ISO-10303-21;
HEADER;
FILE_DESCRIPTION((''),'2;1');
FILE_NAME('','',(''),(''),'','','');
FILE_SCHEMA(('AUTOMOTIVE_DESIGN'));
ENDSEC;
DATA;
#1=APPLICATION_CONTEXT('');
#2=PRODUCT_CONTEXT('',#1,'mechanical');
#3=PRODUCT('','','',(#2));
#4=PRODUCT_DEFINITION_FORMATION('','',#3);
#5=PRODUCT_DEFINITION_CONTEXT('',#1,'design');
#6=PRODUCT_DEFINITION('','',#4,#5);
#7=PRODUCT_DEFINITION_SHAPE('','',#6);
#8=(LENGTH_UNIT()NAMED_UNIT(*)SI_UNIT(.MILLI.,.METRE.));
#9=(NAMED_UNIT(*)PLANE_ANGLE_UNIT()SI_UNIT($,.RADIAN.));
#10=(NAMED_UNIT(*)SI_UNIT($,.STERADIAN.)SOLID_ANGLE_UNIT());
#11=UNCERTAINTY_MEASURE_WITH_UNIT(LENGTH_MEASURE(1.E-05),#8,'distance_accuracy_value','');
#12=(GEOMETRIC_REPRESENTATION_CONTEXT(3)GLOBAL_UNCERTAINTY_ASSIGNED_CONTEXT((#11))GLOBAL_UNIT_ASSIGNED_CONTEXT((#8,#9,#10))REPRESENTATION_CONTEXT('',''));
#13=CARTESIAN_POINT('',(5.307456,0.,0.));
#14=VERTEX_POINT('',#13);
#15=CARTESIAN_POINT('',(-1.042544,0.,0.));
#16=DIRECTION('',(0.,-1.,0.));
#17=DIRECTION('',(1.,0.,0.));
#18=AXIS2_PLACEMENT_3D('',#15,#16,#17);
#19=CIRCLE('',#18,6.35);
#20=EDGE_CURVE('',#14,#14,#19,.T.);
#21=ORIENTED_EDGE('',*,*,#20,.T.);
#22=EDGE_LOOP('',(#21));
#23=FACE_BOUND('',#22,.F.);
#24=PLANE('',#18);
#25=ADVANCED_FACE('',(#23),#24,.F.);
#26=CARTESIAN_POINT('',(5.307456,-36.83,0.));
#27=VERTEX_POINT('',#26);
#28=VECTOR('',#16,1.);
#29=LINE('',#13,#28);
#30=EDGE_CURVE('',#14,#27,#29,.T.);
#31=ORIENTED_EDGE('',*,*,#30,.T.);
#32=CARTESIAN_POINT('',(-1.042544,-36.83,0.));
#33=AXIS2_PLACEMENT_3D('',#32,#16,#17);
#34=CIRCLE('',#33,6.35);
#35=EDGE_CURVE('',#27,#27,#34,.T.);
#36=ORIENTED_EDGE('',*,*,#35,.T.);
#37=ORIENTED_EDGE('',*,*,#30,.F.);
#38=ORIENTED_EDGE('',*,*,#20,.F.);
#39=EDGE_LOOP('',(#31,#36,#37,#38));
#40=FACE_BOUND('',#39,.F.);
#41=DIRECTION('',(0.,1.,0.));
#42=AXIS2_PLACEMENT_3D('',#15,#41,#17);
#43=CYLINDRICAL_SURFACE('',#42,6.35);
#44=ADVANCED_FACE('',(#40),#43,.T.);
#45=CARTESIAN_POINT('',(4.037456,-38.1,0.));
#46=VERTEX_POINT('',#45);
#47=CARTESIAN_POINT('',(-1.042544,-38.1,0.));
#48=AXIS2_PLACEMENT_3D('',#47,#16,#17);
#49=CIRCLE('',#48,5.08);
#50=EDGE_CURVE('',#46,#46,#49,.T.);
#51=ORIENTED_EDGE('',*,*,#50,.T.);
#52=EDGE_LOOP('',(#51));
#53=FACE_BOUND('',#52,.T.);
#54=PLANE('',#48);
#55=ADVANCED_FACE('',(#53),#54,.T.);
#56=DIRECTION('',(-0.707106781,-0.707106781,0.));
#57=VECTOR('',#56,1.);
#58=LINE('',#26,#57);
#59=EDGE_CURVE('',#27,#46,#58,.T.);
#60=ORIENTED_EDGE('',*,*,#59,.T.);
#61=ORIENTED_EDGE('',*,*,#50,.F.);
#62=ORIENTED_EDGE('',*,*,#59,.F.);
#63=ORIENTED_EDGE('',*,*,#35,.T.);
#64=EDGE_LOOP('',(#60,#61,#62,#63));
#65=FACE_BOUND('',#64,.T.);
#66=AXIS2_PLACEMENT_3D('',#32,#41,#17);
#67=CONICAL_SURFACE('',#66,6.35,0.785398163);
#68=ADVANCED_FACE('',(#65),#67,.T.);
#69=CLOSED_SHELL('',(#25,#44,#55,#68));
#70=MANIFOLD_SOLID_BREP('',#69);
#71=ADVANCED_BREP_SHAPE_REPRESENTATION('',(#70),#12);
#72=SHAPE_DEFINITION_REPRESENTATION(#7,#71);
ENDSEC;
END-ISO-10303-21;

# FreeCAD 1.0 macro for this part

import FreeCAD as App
import Part
import Sketcher
Q = App.Units.Quantity


def edges_at(feature, points):
    """Names of the edges that pass closest to the given points."""
    edges = feature.Shape.Edges
    near = lambda p: min(range(len(edges)), key=lambda i: edges[i].distToShape(Part.Vertex(*p))[0])
    return sorted({f"Edge{near(p) + 1}" for p in points})

doc = App.newDocument("Part")
params = doc.addObject("Spreadsheet::Sheet", "Params")
for row, (alias, value) in enumerate([
    ("sketch1_diameter", "0.5 in"),
    ("pad1_length", "1.5 in"),
    ("chamfer_size", "0.05 in"),
], start=1):
    params.set(f"A{row}", alias)
    params.set(f"B{row}", "=" + value)
    params.setAlias(f"B{row}", alias)

body = doc.addObject("PartDesign::Body", "Body")

sketch1 = doc.addObject("Sketcher::SketchObject", "Sketch")
body.addObject(sketch1)
sketch1.AttachmentSupport = (doc.XZ_Plane, [""])
sketch1.MapMode = "FlatFace"
sketch1.addGeometry(Part.Circle(App.Vector(-1, 0, 0), App.Vector(0, 0, 1), 6), False)
sketch1.addConstraint([
    Sketcher.Constraint("PointOnObject", 0, 3, -1),
    Sketcher.Constraint("Diameter", 0, Q("0.5 in")),
    Sketcher.Constraint("DistanceX", 0, 3, -1, 1, 1.042544),
])
sketch1.setExpression("Constraints[1]", "Params.sketch1_diameter")
pad1 = doc.addObject("PartDesign::Pad", "Pad")
body.addObject(pad1)
pad1.Profile = sketch1
pad1.setExpression("Length", "Params.pad1_length")
doc.recompute()

chamfer = doc.addObject("PartDesign::Chamfer", "Chamfer")
body.addObject(chamfer)
chamfer.Base = (pad1, edges_at(pad1, [(-7.393, -38.1, 0)]))
chamfer.setExpression("Size", "Params.chamfer_size")

doc.recompute()
